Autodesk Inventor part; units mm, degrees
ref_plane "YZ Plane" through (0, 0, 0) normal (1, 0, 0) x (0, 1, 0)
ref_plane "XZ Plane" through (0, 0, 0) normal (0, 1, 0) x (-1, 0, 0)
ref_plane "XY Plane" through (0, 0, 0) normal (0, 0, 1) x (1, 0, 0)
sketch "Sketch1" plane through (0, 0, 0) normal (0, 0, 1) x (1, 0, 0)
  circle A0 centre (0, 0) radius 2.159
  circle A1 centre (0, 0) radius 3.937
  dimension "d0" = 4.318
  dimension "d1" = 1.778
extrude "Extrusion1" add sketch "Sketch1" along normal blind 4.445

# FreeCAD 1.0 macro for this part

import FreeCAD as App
import Part
import Sketcher
Q = App.Units.Quantity

doc = App.newDocument("Part")
params = doc.addObject("Spreadsheet::Sheet", "Params")
for row, (alias, value) in enumerate([
    ("sketch1_diameter", "0.17 in"),
    ("sketch1_diameter2", "0.31 in"),
    ("pad1_length", "0.175 in"),
], start=1):
    params.set(f"A{row}", alias)
    params.set(f"B{row}", "=" + value)
    params.setAlias(f"B{row}", alias)

body = doc.addObject("PartDesign::Body", "Body")

sketch1 = body.newObject("Sketcher::SketchObject", "Sketch")
sketch1.AttachmentSupport = (doc.getObject("XY_Plane"), [""])
sketch1.MapMode = "FlatFace"
sketch1.addGeometry([
    Part.Circle(App.Vector(0, 0, 0), App.Vector(0, 0, 1), 3.9),
    Part.Circle(App.Vector(0, 0, 0), App.Vector(0, 0, 1), 2.2),
], False)
sketch1.addConstraint([
    Sketcher.Constraint("Coincident", 0, 3, -1, 1),
    Sketcher.Constraint("Coincident", 1, 3, -1, 1),
    Sketcher.Constraint("Diameter", 1, Q("0.17 in")),
    Sketcher.Constraint("Diameter", 0, Q("0.31 in")),
])
sketch1.setExpression("Constraints[2]", "Params.sketch1_diameter")
sketch1.setExpression("Constraints[3]", "Params.sketch1_diameter2")
pad1 = body.newObject("PartDesign::Pad", "Pad")
pad1.Profile = sketch1
pad1.setExpression("Length", "Params.pad1_length")

doc.recompute()
